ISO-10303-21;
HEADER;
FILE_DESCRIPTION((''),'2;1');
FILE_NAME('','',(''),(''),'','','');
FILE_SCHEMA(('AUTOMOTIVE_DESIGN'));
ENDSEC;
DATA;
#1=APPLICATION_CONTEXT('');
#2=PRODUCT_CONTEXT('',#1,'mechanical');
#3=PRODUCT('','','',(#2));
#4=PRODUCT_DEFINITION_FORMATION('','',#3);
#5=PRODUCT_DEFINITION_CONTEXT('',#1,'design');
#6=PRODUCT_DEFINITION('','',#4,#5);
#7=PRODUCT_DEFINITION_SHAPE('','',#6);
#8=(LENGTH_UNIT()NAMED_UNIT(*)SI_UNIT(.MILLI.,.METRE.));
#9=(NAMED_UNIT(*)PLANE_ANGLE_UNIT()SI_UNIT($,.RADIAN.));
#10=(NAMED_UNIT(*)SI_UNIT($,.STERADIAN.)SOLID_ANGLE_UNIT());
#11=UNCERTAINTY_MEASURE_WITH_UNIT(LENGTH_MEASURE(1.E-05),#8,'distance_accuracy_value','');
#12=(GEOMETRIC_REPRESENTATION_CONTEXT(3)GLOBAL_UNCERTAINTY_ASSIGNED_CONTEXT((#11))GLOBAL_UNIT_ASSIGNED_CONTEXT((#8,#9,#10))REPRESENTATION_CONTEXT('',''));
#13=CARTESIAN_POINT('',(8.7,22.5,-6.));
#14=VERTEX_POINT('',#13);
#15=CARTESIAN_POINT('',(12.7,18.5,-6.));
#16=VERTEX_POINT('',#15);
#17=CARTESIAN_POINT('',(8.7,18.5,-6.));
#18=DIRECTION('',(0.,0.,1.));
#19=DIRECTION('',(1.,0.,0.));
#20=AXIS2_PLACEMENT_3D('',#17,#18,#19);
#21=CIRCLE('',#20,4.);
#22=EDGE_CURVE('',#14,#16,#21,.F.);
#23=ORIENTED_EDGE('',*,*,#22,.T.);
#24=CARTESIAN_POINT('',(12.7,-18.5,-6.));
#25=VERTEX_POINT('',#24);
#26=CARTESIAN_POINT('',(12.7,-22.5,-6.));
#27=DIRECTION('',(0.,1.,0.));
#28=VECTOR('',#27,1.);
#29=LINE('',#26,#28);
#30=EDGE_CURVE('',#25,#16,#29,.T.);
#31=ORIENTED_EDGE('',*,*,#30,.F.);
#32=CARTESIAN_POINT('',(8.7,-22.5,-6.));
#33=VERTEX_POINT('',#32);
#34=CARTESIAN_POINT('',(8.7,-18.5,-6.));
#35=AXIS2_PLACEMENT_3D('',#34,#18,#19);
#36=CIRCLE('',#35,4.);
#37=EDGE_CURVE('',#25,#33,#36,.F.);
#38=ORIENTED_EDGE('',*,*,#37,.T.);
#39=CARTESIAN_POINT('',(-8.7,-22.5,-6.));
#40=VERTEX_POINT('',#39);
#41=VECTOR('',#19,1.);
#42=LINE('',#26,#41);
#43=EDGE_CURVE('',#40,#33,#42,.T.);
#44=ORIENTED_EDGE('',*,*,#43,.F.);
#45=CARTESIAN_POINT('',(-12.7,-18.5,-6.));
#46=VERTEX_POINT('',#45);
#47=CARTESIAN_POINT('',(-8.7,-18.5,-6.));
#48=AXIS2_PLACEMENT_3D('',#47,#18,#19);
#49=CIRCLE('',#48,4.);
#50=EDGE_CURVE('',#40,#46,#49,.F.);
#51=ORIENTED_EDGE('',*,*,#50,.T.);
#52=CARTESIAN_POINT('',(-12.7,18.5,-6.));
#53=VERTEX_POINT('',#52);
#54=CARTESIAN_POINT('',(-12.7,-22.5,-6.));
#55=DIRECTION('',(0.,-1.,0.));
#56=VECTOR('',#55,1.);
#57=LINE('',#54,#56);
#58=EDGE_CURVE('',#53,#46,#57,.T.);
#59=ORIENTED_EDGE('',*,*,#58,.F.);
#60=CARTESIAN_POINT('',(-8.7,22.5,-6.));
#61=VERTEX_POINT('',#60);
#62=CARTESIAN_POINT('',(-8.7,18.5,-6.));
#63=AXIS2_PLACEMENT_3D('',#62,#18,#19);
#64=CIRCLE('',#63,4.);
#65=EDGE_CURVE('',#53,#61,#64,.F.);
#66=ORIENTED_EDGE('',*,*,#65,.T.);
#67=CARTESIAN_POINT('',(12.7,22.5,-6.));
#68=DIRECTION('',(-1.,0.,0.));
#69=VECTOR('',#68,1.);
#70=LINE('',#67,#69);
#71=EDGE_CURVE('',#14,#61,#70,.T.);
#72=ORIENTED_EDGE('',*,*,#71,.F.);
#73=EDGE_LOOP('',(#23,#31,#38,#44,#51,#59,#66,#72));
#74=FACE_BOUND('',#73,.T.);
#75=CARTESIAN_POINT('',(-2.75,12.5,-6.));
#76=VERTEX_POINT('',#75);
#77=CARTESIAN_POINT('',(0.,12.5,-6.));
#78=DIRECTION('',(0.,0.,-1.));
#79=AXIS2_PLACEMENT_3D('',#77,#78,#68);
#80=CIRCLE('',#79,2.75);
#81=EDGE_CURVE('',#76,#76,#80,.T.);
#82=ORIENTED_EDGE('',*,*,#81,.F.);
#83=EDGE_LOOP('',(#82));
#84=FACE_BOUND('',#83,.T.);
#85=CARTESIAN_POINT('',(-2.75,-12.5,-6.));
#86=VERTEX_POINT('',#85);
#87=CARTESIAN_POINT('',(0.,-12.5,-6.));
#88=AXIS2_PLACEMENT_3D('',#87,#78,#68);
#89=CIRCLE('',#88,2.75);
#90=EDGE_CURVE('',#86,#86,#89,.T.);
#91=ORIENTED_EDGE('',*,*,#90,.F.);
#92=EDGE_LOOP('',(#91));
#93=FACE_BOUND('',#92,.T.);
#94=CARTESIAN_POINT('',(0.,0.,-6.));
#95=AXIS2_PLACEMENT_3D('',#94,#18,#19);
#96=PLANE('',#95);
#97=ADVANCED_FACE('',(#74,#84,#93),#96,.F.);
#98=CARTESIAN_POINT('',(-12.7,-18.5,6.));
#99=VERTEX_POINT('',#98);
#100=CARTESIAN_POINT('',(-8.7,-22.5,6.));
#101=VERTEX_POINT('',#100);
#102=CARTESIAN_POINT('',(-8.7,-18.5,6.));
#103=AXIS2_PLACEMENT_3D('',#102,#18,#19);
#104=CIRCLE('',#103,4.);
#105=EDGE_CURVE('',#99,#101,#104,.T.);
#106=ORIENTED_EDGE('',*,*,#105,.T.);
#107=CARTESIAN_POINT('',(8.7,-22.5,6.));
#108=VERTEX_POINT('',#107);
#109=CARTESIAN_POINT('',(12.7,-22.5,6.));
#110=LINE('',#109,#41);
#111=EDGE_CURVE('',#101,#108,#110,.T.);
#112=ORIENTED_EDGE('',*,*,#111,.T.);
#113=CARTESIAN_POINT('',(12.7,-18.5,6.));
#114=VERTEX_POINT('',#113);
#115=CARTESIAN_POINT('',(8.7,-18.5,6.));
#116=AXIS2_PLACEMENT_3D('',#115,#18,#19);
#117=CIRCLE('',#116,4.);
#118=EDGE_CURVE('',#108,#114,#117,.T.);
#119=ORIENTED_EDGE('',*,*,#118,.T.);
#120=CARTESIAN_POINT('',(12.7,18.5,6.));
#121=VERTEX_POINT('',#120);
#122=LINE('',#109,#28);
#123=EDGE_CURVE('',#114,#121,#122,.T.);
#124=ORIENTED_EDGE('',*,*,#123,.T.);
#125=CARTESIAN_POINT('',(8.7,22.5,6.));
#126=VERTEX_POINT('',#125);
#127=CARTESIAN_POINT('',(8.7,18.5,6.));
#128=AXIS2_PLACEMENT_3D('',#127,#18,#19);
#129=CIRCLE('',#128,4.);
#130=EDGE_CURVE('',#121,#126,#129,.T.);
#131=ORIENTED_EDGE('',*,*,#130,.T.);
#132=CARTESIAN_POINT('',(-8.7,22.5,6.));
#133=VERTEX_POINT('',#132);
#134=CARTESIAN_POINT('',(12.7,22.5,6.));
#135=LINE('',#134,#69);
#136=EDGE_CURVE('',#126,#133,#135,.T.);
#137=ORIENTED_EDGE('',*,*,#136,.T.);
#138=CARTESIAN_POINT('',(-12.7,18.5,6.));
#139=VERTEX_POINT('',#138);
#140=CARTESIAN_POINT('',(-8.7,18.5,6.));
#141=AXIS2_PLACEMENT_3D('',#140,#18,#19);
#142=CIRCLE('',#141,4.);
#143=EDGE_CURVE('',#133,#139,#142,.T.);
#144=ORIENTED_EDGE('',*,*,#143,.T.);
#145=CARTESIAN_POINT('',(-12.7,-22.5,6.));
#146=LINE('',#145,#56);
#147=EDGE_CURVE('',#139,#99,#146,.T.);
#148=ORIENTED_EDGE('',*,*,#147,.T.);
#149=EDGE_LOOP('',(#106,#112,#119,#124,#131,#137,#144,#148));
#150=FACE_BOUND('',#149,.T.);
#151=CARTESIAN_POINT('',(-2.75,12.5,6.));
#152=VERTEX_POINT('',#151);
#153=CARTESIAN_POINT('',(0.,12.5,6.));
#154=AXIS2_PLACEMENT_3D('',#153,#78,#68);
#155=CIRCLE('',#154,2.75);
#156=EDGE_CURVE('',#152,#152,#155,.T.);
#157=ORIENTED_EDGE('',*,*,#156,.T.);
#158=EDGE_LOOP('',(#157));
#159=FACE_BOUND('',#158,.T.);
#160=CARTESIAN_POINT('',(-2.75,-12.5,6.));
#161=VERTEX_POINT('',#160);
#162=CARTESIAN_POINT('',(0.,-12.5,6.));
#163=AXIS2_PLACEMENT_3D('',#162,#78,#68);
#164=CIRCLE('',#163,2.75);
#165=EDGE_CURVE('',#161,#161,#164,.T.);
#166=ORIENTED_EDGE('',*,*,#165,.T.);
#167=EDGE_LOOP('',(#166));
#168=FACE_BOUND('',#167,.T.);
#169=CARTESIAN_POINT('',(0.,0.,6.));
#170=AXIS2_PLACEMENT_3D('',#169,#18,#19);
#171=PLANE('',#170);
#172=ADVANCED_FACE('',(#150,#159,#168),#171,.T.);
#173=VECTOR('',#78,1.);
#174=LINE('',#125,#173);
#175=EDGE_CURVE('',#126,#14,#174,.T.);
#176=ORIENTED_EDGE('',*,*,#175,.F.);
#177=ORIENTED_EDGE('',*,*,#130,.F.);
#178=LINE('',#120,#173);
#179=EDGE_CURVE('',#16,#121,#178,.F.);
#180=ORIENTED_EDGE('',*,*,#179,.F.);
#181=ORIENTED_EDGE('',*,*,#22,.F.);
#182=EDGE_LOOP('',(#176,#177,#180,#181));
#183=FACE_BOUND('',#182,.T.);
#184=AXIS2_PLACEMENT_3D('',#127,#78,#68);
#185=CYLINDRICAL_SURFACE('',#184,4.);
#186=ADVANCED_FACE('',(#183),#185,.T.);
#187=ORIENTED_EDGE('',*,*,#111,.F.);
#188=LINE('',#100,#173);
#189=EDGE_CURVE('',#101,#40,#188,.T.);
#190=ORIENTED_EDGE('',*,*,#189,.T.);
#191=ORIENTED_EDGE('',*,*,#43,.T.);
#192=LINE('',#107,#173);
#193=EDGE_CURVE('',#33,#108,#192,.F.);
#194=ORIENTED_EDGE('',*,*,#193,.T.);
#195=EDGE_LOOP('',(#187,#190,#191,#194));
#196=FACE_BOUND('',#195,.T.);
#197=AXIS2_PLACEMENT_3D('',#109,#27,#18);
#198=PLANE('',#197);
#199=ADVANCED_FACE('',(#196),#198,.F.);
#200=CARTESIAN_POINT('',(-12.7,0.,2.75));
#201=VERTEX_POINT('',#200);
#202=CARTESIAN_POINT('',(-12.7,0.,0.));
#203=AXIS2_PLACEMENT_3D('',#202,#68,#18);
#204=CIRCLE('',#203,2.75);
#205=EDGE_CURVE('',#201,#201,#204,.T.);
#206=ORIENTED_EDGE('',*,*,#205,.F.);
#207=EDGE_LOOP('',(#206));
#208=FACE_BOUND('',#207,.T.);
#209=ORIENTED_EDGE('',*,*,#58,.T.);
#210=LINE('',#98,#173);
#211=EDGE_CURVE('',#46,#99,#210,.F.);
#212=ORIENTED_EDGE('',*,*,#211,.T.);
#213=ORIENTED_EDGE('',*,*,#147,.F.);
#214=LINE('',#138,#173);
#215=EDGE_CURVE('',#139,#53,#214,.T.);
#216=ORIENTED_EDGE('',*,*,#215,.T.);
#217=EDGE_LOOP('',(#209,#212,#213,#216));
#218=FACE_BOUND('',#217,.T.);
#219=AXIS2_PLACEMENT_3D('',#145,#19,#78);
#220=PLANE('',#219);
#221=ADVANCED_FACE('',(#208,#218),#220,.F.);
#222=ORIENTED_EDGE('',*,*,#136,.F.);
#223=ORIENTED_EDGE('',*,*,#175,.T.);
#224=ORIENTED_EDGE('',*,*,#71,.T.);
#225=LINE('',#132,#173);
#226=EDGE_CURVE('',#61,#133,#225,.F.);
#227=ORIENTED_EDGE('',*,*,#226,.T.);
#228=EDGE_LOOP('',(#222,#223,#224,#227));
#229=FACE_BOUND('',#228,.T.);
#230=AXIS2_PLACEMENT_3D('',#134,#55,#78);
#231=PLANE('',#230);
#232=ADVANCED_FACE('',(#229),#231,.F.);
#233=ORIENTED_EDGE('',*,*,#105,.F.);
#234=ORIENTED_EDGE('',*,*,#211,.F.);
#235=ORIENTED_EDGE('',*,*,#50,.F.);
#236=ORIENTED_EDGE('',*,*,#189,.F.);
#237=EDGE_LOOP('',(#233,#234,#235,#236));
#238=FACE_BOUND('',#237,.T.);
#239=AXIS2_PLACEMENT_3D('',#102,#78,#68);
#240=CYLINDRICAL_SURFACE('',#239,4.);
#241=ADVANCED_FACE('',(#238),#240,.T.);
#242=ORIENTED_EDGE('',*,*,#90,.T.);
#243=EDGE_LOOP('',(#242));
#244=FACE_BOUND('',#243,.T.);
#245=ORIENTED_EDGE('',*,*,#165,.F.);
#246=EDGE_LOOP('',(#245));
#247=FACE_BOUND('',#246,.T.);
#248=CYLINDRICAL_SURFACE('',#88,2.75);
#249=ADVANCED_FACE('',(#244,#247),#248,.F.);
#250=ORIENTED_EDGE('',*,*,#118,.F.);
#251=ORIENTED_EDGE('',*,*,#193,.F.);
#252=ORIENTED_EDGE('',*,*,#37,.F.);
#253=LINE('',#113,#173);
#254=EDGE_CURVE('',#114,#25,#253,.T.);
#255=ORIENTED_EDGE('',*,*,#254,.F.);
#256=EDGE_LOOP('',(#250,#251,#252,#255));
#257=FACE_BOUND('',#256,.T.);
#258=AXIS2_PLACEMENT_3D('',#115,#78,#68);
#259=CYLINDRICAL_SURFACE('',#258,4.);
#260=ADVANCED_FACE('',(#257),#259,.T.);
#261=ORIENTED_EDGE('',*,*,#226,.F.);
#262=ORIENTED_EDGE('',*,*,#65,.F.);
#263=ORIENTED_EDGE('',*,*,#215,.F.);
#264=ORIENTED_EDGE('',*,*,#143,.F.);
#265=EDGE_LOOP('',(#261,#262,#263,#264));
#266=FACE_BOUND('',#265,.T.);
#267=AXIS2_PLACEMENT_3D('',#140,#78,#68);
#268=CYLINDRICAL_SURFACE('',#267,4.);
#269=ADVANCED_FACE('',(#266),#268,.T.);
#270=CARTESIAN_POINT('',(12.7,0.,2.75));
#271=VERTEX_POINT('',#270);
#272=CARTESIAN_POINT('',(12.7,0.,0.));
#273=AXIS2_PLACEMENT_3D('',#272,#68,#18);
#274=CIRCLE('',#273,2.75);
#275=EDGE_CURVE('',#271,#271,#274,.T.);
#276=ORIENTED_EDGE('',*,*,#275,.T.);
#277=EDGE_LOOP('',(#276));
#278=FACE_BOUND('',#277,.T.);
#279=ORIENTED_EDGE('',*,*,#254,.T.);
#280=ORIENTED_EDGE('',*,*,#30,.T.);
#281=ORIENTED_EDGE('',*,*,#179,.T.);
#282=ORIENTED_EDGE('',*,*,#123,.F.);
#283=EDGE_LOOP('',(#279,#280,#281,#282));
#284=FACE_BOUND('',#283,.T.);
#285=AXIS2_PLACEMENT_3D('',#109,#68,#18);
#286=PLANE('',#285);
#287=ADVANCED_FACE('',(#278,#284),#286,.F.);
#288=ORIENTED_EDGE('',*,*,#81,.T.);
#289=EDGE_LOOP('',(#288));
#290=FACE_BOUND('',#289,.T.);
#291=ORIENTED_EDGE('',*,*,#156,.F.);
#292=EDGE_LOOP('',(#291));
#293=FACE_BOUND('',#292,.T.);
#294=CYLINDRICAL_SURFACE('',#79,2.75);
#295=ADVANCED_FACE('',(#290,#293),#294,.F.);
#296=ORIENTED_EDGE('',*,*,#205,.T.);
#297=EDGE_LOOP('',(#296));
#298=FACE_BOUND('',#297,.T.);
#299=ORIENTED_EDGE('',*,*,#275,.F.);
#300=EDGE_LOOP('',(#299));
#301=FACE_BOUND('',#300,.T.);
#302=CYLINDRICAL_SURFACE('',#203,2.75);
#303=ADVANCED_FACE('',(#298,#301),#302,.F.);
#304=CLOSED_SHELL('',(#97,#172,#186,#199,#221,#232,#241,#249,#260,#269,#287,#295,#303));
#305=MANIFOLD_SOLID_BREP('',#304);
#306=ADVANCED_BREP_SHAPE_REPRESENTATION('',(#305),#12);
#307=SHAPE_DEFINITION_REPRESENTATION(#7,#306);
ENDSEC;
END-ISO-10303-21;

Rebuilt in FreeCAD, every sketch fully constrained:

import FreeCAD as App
import Part
import Sketcher
from FreeCAD import Vector


def edges_at(feature, points):
    """Names of the edges that pass closest to the given points."""
    edges = feature.Shape.Edges
    near = lambda p: min(range(len(edges)), key=lambda i: edges[i].distToShape(Part.Vertex(*p))[0])
    return sorted({f"Edge{near(p) + 1}" for p in points})


def add_polygon(sketch, points):
    """Adds a closed chain of lines whose ends are joined by coincident constraints."""
    first, n = sketch.GeometryCount, len(points)
    for a, b in zip(points, points[1:] + points[:1]):
        sketch.addGeometry(Part.LineSegment(App.Vector(*a, 0), App.Vector(*b, 0)), False)
    for i in range(n):
        sketch.addConstraint(Sketcher.Constraint("Coincident", first + i, 2, first + (i + 1) % n, 1))

doc = App.newDocument("Part")
body = doc.addObject("PartDesign::Body", "Body")

sketch1 = body.newObject("Sketcher::SketchObject", "Sketch")
sketch1.AttachmentSupport = (doc.getObject("XY_Plane"), [""])
sketch1.MapMode = "FlatFace"
add_polygon(sketch1, [(-12.7, 22.5), (-12.7, -22.5), (12.7, -22.5), (12.7, 22.5)])
sketch1.addConstraint(Sketcher.Constraint("Vertical", 0))
sketch1.addConstraint(Sketcher.Constraint("Horizontal", 1))
sketch1.addConstraint(Sketcher.Constraint("Vertical", 2))
sketch1.addConstraint(Sketcher.Constraint("Horizontal", 3))
sketch1.addConstraint(Sketcher.Constraint("Symmetric", 0, 2, 2, 2, -1, 1))
sketch1.addConstraint(Sketcher.Constraint("DistanceY", 0, 2, 0, 1, 45.0))
sketch1.addConstraint(Sketcher.Constraint("DistanceX", 1, 1, 1, 2, 25.4))
pad1 = body.newObject("PartDesign::Pad", "Pad")
pad1.Profile = sketch1
pad1.Length = 12
pad1.Midplane = True
doc.recompute()

fillet = body.newObject("PartDesign::Fillet", "Fillet")
fillet.Base = (pad1, edges_at(pad1, [
    (-12.7, 22.5, 0),
    (12.7, 22.5, 0),
    (12.7, -22.5, 0),
    (-12.7, -22.5, 0),
]))
fillet.Radius = 4

sketch2 = body.newObject("Sketcher::SketchObject", "Sketch001")
sketch2.AttachmentSupport = (doc.getObject("YZ_Plane"), [""])
sketch2.MapMode = "FlatFace"
sketch2.AttachmentOffset = App.Placement(Vector(0, 0, -12.7), App.Rotation())
sketch2.addGeometry(Part.Circle(Vector(0, 0, 0), Vector(0, 0, 1), 2.75), False)
sketch2.addConstraint(Sketcher.Constraint("Coincident", 0, 3, -1, 1))
sketch2.addConstraint(Sketcher.Constraint("Diameter", 0, 5.5))
doc.recompute()
hole = body.newObject("PartDesign::Hole", "Hole")
hole.Profile = sketch2
hole.ThreadType = "None"
hole.Diameter = 5.5
hole.DepthType = "ThroughAll"
hole.Reversed = True

sketch3 = body.newObject("Sketcher::SketchObject", "Sketch002")
sketch3.AttachmentSupport = (doc.getObject("XY_Plane"), [""])
sketch3.MapMode = "FlatFace"
sketch3.AttachmentOffset = App.Placement(Vector(0, 0, -6), App.Rotation())
sketch3.addGeometry(Part.Circle(Vector(0, 12.5, 0), Vector(0, 0, 1), 2.75), False)
sketch3.addGeometry(Part.Circle(Vector(0, -12.5, 0), Vector(0, 0, 1), 2.75), False)
sketch3.addConstraint(Sketcher.Constraint("Equal", 0, 1))
sketch3.addConstraint(Sketcher.Constraint("Symmetric", 0, 3, 1, 3, -1, 1))
sketch3.addConstraint(Sketcher.Constraint("PointOnObject", 0, 3, -2))
sketch3.addConstraint(Sketcher.Constraint("Diameter", 0, 5.5))
sketch3.addConstraint(Sketcher.Constraint("DistanceY", 1, 3, 0, 3, 25.0))
doc.recompute()
hole2 = body.newObject("PartDesign::Hole", "Hole001")
hole2.Profile = sketch3
hole2.ThreadType = "None"
hole2.Diameter = 5.5
hole2.DepthType = "ThroughAll"
hole2.Reversed = True

doc.recompute()
